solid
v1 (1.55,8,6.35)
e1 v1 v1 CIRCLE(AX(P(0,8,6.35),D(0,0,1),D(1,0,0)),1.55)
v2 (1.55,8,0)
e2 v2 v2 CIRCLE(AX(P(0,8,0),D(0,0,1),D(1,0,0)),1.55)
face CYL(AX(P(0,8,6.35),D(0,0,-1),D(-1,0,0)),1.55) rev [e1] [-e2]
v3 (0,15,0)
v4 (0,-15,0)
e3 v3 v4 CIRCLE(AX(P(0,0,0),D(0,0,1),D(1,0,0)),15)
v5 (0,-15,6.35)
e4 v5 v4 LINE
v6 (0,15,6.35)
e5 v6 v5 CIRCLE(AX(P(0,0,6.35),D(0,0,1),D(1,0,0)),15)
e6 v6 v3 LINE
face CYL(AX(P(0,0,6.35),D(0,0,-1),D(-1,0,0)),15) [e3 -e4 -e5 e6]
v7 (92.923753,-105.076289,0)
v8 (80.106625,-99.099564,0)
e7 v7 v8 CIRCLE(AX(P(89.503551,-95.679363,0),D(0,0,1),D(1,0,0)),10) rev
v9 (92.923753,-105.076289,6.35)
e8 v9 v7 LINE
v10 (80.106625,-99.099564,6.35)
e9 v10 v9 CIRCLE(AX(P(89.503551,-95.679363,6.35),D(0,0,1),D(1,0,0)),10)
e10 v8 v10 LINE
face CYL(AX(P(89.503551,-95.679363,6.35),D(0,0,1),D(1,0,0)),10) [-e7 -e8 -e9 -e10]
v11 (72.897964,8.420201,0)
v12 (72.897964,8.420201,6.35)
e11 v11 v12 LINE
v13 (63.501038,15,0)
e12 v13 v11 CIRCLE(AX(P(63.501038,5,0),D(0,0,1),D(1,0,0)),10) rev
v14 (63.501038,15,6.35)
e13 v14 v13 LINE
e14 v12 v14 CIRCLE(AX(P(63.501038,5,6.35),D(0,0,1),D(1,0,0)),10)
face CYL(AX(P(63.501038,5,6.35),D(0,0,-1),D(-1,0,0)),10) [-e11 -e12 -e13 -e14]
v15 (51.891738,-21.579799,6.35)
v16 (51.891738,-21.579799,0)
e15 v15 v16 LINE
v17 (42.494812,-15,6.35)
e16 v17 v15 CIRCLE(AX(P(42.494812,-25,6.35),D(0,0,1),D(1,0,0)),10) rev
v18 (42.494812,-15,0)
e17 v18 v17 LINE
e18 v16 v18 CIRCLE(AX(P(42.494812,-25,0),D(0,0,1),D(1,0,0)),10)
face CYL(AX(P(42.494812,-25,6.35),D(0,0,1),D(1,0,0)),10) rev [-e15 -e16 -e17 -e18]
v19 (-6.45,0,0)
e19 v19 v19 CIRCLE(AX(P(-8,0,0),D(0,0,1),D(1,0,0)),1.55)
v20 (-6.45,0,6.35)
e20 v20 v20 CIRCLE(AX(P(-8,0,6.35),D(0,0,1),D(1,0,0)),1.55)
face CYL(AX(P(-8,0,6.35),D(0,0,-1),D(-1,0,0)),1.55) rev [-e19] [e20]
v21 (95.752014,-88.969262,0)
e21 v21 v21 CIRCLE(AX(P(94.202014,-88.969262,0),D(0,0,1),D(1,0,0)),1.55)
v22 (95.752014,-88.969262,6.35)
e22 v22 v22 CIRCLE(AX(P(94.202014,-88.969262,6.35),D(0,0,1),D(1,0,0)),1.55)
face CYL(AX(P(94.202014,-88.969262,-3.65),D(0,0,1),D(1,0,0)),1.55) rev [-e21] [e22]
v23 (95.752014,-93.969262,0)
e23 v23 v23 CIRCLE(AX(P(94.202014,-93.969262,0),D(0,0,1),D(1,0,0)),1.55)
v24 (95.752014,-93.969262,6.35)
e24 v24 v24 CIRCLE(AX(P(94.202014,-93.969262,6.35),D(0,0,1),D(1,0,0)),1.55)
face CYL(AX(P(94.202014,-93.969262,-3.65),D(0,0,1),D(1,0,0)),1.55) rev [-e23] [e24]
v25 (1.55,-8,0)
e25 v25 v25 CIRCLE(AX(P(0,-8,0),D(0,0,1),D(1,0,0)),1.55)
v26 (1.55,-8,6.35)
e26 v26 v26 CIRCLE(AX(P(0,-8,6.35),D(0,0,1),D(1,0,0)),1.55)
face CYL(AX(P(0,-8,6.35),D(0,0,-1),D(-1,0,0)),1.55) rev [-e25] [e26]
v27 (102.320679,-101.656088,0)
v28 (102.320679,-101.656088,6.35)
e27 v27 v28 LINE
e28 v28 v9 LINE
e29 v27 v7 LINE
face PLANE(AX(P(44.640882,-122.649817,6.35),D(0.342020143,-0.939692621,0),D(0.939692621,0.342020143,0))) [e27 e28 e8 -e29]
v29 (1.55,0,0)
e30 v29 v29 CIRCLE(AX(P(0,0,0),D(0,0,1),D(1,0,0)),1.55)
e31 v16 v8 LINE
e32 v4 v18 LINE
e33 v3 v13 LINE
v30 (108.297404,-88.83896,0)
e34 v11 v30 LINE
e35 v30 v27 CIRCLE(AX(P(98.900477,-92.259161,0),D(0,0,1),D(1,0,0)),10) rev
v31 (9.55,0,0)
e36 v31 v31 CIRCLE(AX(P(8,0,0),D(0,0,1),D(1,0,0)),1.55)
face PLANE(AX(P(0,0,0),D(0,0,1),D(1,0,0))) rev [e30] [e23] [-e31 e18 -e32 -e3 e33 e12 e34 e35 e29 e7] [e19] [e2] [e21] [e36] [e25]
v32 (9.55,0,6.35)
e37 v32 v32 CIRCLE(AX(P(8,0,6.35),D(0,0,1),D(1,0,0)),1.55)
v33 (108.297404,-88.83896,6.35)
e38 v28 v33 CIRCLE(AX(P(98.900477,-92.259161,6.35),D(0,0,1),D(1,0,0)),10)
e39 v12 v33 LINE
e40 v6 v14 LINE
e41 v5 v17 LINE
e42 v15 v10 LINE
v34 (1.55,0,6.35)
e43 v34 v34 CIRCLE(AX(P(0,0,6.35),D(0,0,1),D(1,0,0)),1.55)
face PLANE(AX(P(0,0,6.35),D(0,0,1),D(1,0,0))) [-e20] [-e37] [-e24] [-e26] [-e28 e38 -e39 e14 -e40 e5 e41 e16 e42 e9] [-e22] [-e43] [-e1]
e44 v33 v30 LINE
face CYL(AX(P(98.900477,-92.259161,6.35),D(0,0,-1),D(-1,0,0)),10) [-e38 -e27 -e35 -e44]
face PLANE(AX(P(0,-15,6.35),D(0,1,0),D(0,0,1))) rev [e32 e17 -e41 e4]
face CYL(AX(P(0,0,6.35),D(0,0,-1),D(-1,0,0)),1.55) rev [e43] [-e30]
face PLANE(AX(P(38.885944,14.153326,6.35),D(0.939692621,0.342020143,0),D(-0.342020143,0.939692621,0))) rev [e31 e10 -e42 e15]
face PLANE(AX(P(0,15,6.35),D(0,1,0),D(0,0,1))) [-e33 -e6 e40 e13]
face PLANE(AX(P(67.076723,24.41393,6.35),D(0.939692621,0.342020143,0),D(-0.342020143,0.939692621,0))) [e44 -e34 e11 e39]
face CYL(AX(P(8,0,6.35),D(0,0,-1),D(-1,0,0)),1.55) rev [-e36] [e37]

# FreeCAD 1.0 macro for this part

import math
import FreeCAD as App
import Part
import Sketcher
from FreeCAD import Vector
Q = App.Units.Quantity


def edges_at(feature, points):
    """Names of the edges that pass closest to the given points."""
    edges = feature.Shape.Edges
    near = lambda p: min(range(len(edges)), key=lambda i: edges[i].distToShape(Part.Vertex(*p))[0])
    return sorted({f"Edge{near(p) + 1}" for p in points})

doc = App.newDocument("Part")
body = doc.addObject("PartDesign::Body", "Body")

# Sketch on XY plane
sketch1 = body.newObject("Sketcher::SketchObject", "Sketch")
sketch1.AttachmentSupport = (doc.getObject("XY_Plane"), [""])
sketch1.MapMode = "FlatFace"
sketch1.addGeometry([
    Part.ArcOfCircle(Part.Circle(Vector(0, 0, 0), Vector(0, 0, 1), 15), math.radians(90), math.radians(270)),  # 0
    Part.LineSegment(Vector(0, -15, 0), Vector(49.5, -15, 0)),  # 1
    Part.LineSegment(Vector(49.5, -15, 0), Vector(83.5, -108.5, 0)),  # 2
    Part.LineSegment(Vector(83.5, -108.5, 0), Vector(111.7, -98.2, 0)),  # 3
    Part.LineSegment(Vector(111.7, -98.2, 0), Vector(70.5, 15, 0)),  # 4
    Part.LineSegment(Vector(70.5, 15, 0), Vector(0, 15, 0)),  # 5
    Part.Circle(Vector(0, -8, 0), Vector(0, 0, 1), 1.6),  # 6
    Part.Circle(Vector(-8, 0, 0), Vector(0, 0, 1), 1.6),  # 7
    Part.Circle(Vector(0, 0, 0), Vector(0, 0, 1), 1.6),  # 8
    Part.Circle(Vector(0, 8, 0), Vector(0, 0, 1), 1.6),  # 9
    Part.Circle(Vector(8, 0, 0), Vector(0, 0, 1), 1.6),  # 10
], False)
sketch1.addConstraint([
    Sketcher.Constraint("Tangent", 0, 2, 1, 1),
    Sketcher.Constraint("Coincident", 1, 2, 2, 1),
    Sketcher.Constraint("Coincident", 2, 2, 3, 1),
    Sketcher.Constraint("Coincident", 3, 2, 4, 1),
    Sketcher.Constraint("Coincident", 4, 2, 5, 1),
    Sketcher.Constraint("Tangent", 5, 2, 0, 1),
    Sketcher.Constraint("Horizontal", 1),
    Sketcher.Constraint("Horizontal", 5),
    Sketcher.Constraint("Coincident", 0, 3, -1, 1),
    Sketcher.Constraint("Coincident", 8, 3, -1, 1),
    Sketcher.Constraint("Equal", 6, 7),
    Sketcher.Constraint("Equal", 7, 8),
    Sketcher.Constraint("Equal", 8, 9),
    Sketcher.Constraint("Equal", 9, 10),
    Sketcher.Constraint("Symmetric", 6, 3, 9, 3, -1, 1),
    Sketcher.Constraint("Symmetric", 7, 3, 10, 3, -1, 1),
    Sketcher.Constraint("PointOnObject", 6, 3, -2),
    Sketcher.Constraint("PointOnObject", 7, 3, -1),
    Sketcher.Constraint("Perpendicular", 2, 3),
    Sketcher.Constraint("Perpendicular", 3, 4),
    Sketcher.Constraint("Radius", 0, Q("15 mm")),
    Sketcher.Constraint("Diameter", 6, Q("3.1 mm")),
    Sketcher.Constraint("Angle", 2, Q("-70 deg")),
    Sketcher.Constraint("Distance", 3, Q("30 mm")),
    Sketcher.Constraint("DistanceY", 6, 3, -1, 1, Q("8 mm")),
    Sketcher.Constraint("DistanceX", 7, 3, -1, 1, Q("8 mm")),
    Sketcher.Constraint("DistanceX", 1, 1, 1, 2, Q("49.496887 mm")),
    Sketcher.Constraint("DistanceY", 2, 2, -1, 1, Q("108.49649 mm")),
])
pad1 = body.newObject("PartDesign::Pad", "Pad")
pad1.Profile = sketch1
pad1.Length = 6.35
doc.recompute()

fillet = body.newObject("PartDesign::Fillet", "Fillet")
fillet.Base = (pad1, edges_at(pad1, [(49.497, -15, 3.175), (70.503, 15, 3.175)]))
fillet.Radius = 10
doc.recompute()

fillet2 = body.newObject("PartDesign::Fillet", "Fillet001")
fillet2.Base = (fillet, edges_at(fillet, [(111.718, -98.236, 3.175), (83.527, -108.496, 3.175)]))
fillet2.Radius = 10

# Sketch on XY plane
sketch2 = body.newObject("Sketcher::SketchObject", "Sketch001")
sketch2.AttachmentSupport = (doc.getObject("XY_Plane"), [""])
sketch2.MapMode = "FlatFace"
sketch2.AttachmentOffset = App.Placement(Vector(0, 0, 6.35), App.Rotation())
sketch2.addGeometry([
    Part.Circle(Vector(94.2, -94, 0), Vector(0, 0, 1), 1.6),
    Part.Circle(Vector(94.2, -89, 0), Vector(0, 0, 1), 1.6),
], False)
sketch2.addConstraint([
    Sketcher.Constraint("Equal", 0, 1),
    Sketcher.Constraint("Vertical", 0, 3, 1, 3),
    Sketcher.Constraint("Diameter", 0, Q("3.1 mm")),
    Sketcher.Constraint("DistanceY", 0, 3, 1, 3, Q("5 mm")),
    Sketcher.Constraint("DistanceX", -1, 1, 0, 3, Q("94.202014 mm")),
    Sketcher.Constraint("DistanceY", 0, 3, -1, 1, Q("93.969262 mm")),
])
pocket1 = body.newObject("PartDesign::Pocket", "Pocket")
pocket1.Profile = sketch2
pocket1.Length = 10

doc.recompute()
